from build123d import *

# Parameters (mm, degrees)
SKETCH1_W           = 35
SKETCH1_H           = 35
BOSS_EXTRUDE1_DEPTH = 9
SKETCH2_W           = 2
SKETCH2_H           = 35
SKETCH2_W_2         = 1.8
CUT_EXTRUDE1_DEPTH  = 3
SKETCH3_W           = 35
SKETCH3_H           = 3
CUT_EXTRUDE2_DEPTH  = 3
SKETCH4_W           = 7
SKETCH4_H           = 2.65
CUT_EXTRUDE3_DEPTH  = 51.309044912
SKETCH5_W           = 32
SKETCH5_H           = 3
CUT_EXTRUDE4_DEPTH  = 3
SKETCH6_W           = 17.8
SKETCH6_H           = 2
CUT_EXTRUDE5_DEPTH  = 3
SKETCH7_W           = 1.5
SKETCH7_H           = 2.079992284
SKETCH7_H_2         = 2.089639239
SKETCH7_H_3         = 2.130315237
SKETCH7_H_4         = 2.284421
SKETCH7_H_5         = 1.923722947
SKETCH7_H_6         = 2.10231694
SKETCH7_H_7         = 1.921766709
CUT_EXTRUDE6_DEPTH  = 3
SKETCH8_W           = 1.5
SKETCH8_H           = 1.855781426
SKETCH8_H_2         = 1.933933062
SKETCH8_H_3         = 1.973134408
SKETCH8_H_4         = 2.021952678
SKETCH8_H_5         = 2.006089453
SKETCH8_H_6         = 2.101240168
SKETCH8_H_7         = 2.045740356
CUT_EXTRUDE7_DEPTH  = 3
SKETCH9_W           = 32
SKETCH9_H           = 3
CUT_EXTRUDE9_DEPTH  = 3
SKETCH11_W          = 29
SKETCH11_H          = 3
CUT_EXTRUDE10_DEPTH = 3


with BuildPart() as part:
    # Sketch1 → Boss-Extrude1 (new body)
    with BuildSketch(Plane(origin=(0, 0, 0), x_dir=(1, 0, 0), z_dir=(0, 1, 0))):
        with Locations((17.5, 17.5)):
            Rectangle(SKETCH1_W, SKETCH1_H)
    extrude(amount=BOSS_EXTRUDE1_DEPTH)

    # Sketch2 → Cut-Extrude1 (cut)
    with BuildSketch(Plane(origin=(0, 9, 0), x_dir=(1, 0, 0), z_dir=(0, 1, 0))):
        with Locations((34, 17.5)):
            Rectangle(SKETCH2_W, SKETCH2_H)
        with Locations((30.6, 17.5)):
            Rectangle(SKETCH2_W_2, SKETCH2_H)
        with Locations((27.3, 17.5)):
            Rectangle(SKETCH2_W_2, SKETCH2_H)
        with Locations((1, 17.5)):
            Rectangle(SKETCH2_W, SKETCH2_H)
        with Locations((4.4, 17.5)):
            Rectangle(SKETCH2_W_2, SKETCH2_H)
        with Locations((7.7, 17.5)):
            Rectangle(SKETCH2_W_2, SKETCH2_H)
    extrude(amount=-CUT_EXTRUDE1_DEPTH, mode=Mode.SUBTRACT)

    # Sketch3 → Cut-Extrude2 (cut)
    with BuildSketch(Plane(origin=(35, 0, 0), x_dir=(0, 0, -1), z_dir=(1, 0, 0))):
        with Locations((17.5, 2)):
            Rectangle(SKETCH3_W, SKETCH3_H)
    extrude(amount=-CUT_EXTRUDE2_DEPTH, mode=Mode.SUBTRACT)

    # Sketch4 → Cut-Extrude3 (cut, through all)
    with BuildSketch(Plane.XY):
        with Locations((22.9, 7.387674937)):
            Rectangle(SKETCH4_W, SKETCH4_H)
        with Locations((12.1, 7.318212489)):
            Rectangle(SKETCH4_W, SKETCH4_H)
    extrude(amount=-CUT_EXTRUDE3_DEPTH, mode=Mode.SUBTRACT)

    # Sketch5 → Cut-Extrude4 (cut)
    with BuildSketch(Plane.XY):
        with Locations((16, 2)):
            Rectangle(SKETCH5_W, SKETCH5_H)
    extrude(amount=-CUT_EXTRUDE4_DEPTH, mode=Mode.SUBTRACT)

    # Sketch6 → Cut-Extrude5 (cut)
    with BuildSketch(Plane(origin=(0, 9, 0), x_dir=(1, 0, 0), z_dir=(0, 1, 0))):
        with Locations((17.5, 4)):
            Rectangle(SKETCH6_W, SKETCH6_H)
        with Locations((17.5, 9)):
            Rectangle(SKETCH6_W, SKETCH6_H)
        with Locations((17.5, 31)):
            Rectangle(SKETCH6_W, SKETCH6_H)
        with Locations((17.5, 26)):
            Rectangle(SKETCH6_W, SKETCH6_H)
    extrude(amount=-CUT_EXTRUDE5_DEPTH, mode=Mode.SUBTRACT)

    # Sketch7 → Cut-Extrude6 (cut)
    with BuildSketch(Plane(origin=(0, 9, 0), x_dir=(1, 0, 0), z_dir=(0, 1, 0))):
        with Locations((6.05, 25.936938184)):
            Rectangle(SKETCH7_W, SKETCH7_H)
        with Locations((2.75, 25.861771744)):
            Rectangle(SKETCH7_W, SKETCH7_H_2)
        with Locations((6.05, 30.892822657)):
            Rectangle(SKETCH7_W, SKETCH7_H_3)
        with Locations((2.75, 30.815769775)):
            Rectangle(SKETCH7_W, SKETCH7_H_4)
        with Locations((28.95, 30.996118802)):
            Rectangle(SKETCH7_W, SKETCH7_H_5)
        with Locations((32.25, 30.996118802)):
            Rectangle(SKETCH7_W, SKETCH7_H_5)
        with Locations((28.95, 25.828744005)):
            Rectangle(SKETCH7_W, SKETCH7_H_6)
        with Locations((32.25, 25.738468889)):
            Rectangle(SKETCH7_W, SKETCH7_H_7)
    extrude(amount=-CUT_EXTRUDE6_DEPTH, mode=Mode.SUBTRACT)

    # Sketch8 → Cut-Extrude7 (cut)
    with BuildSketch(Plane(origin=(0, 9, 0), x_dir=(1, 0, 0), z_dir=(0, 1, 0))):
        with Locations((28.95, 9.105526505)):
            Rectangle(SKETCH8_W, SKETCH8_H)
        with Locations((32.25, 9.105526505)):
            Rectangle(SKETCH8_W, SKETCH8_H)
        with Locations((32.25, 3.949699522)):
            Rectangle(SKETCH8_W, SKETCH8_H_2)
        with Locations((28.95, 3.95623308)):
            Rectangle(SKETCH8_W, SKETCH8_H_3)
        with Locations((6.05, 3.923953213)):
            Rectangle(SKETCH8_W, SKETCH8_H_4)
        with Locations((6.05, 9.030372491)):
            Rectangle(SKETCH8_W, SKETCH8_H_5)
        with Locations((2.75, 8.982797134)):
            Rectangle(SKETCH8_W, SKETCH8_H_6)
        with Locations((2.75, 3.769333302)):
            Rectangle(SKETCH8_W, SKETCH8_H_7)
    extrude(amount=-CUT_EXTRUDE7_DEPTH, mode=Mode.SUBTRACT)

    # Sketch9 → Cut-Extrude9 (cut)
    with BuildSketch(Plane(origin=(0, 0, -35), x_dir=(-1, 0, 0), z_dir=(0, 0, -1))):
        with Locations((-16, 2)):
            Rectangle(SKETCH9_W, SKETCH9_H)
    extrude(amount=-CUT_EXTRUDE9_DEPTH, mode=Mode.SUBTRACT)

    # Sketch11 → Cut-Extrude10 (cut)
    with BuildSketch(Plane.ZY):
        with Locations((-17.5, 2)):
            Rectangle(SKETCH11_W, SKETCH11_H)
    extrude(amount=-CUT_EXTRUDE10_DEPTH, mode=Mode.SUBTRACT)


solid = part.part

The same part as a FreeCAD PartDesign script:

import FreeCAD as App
import Part
import Sketcher


def add_polygon(sketch, points):
    """Adds a closed chain of lines whose ends are joined by coincident constraints."""
    first, n = sketch.GeometryCount, len(points)
    for a, b in zip(points, points[1:] + points[:1]):
        sketch.addGeometry(Part.LineSegment(App.Vector(*a, 0), App.Vector(*b, 0)), False)
    for i in range(n):
        sketch.addConstraint(Sketcher.Constraint("Coincident", first + i, 2, first + (i + 1) % n, 1))

doc = App.newDocument("Part")
body = doc.addObject("PartDesign::Body", "Body")

# Sketch on XZ plane
sketch1 = body.newObject("Sketcher::SketchObject", "Sketch")
sketch1.AttachmentSupport = (doc.getObject("XZ_Plane"), [""])
sketch1.MapMode = "FlatFace"
add_polygon(sketch1, [(0, -35), (0, 0), (35, 0), (35, -35)])  # lines 0-3
sketch1.addConstraint(Sketcher.Constraint("Vertical", 0))
sketch1.addConstraint(Sketcher.Constraint("Horizontal", 1))
sketch1.addConstraint(Sketcher.Constraint("Vertical", 2))
sketch1.addConstraint(Sketcher.Constraint("Horizontal", 3))
sketch1.addConstraint(Sketcher.Constraint("Coincident", 0, 2, -1, 1))
sketch1.addConstraint(Sketcher.Constraint("Equal", 3, 0))
sketch1.addConstraint(Sketcher.Constraint("DistanceX", 1, 1, 1, 2, 35.0))
pad1 = body.newObject("PartDesign::Pad", "Pad")
pad1.Profile = sketch1
pad1.Length = 9
pad1.Reversed = True

# Sketch on XZ plane
sketch2 = body.newObject("Sketcher::SketchObject", "Sketch001")
sketch2.AttachmentSupport = (doc.getObject("XZ_Plane"), [""])
sketch2.MapMode = "FlatFace"
sketch2.AttachmentOffset = App.Placement(App.Vector(0, 0, -9), App.Rotation())
add_polygon(sketch2, [(33, -35), (33, 0), (35, 0), (35, -35)])  # lines 0-3
add_polygon(sketch2, [(29.7, -35), (29.7, 0), (31.5, 0), (31.5, -35)])  # lines 4-7
add_polygon(sketch2, [(26.4, -35), (26.4, 0), (28.2, 0), (28.2, -35)])  # lines 8-11
add_polygon(sketch2, [(0, -35), (0, 0), (2, 0), (2, -35)])  # lines 12-15
add_polygon(sketch2, [(3.5, -35), (3.5, 0), (5.3, 0), (5.3, -35)])  # lines 16-19
add_polygon(sketch2, [(6.8, -35), (6.8, 0), (8.6, 0), (8.6, -35)])  # lines 20-23
sketch2.addConstraint(Sketcher.Constraint("Vertical", 0))
sketch2.addConstraint(Sketcher.Constraint("Horizontal", 1))
sketch2.addConstraint(Sketcher.Constraint("Vertical", 2))
sketch2.addConstraint(Sketcher.Constraint("Horizontal", 3))
sketch2.addConstraint(Sketcher.Constraint("Vertical", 4))
sketch2.addConstraint(Sketcher.Constraint("Horizontal", 5))
sketch2.addConstraint(Sketcher.Constraint("Vertical", 6))
sketch2.addConstraint(Sketcher.Constraint("Horizontal", 7))
sketch2.addConstraint(Sketcher.Constraint("Vertical", 8))
sketch2.addConstraint(Sketcher.Constraint("Horizontal", 9))
sketch2.addConstraint(Sketcher.Constraint("Vertical", 10))
sketch2.addConstraint(Sketcher.Constraint("Horizontal", 11))
sketch2.addConstraint(Sketcher.Constraint("Vertical", 12))
sketch2.addConstraint(Sketcher.Constraint("Horizontal", 13))
sketch2.addConstraint(Sketcher.Constraint("Vertical", 14))
sketch2.addConstraint(Sketcher.Constraint("Horizontal", 15))
sketch2.addConstraint(Sketcher.Constraint("Vertical", 16))
sketch2.addConstraint(Sketcher.Constraint("Horizontal", 17))
sketch2.addConstraint(Sketcher.Constraint("Vertical", 18))
sketch2.addConstraint(Sketcher.Constraint("Horizontal", 19))
sketch2.addConstraint(Sketcher.Constraint("Vertical", 20))
sketch2.addConstraint(Sketcher.Constraint("Horizontal", 21))
sketch2.addConstraint(Sketcher.Constraint("Vertical", 22))
sketch2.addConstraint(Sketcher.Constraint("Horizontal", 23))
sketch2.addConstraint(Sketcher.Constraint("Coincident", 12, 2, -1, 1))
sketch2.addConstraint(Sketcher.Constraint("PointOnObject", 0, 2, -1))
sketch2.addConstraint(Sketcher.Constraint("PointOnObject", 4, 2, -1))
sketch2.addConstraint(Sketcher.Constraint("PointOnObject", 8, 2, -1))
sketch2.addConstraint(Sketcher.Constraint("PointOnObject", 16, 2, -1))
sketch2.addConstraint(Sketcher.Constraint("PointOnObject", 20, 2, -1))
sketch2.addConstraint(Sketcher.Constraint("Horizontal", 3, 2, 6, 2))
sketch2.addConstraint(Sketcher.Constraint("Horizontal", 7, 2, 10, 2))
sketch2.addConstraint(Sketcher.Constraint("Horizontal", 11, 2, 14, 2))
sketch2.addConstraint(Sketcher.Constraint("Horizontal", 15, 2, 18, 2))
sketch2.addConstraint(Sketcher.Constraint("Horizontal", 19, 2, 22, 2))
sketch2.addConstraint(Sketcher.Constraint("Equal", 7, 9))
sketch2.addConstraint(Sketcher.Constraint("Equal", 3, 13))
sketch2.addConstraint(Sketcher.Constraint("Equal", 11, 17))
sketch2.addConstraint(Sketcher.Constraint("Equal", 19, 21))
sketch2.addConstraint(Sketcher.Constraint("DistanceX", 1, 1, 1, 2, 2.0))
sketch2.addConstraint(Sketcher.Constraint("DistanceY", 0, 1, 0, 2, 35.0))
sketch2.addConstraint(Sketcher.Constraint("DistanceX", 5, 1, 5, 2, 1.8))
sketch2.addConstraint(Sketcher.Constraint("DistanceX", -1, 1, 0, 2, 33.0))
sketch2.addConstraint(Sketcher.Constraint("DistanceX", -1, 1, 4, 2, 29.7))
sketch2.addConstraint(Sketcher.Constraint("DistanceX", -1, 1, 8, 2, 26.4))
sketch2.addConstraint(Sketcher.Constraint("DistanceX", -1, 1, 16, 2, 3.5))
sketch2.addConstraint(Sketcher.Constraint("DistanceX", -1, 1, 20, 2, 6.8))
pocket1 = body.newObject("PartDesign::Pocket", "Pocket")
pocket1.Profile = sketch2
pocket1.Length = 3
pocket1.Reversed = True

# Sketch on YZ plane
sketch3 = body.newObject("Sketcher::SketchObject", "Sketch002")
sketch3.AttachmentSupport = (doc.getObject("YZ_Plane"), [""])
sketch3.MapMode = "FlatFace"
sketch3.AttachmentOffset = App.Placement(App.Vector(0, 0, 35), App.Rotation())
add_polygon(sketch3, [(3.5, 0), (0.5, 0), (0.5, -35), (3.5, -35)])  # lines 0-3
sketch3.addConstraint(Sketcher.Constraint("Horizontal", 0))
sketch3.addConstraint(Sketcher.Constraint("Vertical", 1))
sketch3.addConstraint(Sketcher.Constraint("Horizontal", 2))
sketch3.addConstraint(Sketcher.Constraint("Vertical", 3))
sketch3.addConstraint(Sketcher.Constraint("PointOnObject", 0, 2, -1))
sketch3.addConstraint(Sketcher.Constraint("DistanceX", 0, 2, 0, 1, 3.0))
sketch3.addConstraint(Sketcher.Constraint("DistanceY", 1, 2, 1, 1, 35.0))
sketch3.addConstraint(Sketcher.Constraint("DistanceX", -1, 1, 0, 2, 0.5))
pocket2 = body.newObject("PartDesign::Pocket", "Pocket001")
pocket2.Profile = sketch3
pocket2.Length = 3

# Sketch on XY plane
sketch4 = body.newObject("Sketcher::SketchObject", "Sketch003")
sketch4.AttachmentSupport = (doc.getObject("XY_Plane"), [""])
sketch4.MapMode = "FlatFace"
add_polygon(sketch4, [(19.4, 8.7), (19.4, 6.1), (26.4, 6.1), (26.4, 8.7)])  # lines 0-3
add_polygon(sketch4, [(8.6, 8.6), (8.6, 6), (15.6, 6), (15.6, 8.6)])  # lines 4-7
sketch4.addConstraint(Sketcher.Constraint("Vertical", 0))
sketch4.addConstraint(Sketcher.Constraint("Horizontal", 1))
sketch4.addConstraint(Sketcher.Constraint("Vertical", 2))
sketch4.addConstraint(Sketcher.Constraint("Horizontal", 3))
sketch4.addConstraint(Sketcher.Constraint("Vertical", 4))
sketch4.addConstraint(Sketcher.Constraint("Horizontal", 5))
sketch4.addConstraint(Sketcher.Constraint("Vertical", 6))
sketch4.addConstraint(Sketcher.Constraint("Horizontal", 7))
sketch4.addConstraint(Sketcher.Constraint("Equal", 3, 5))
sketch4.addConstraint(Sketcher.Constraint("Equal", 2, 4))
sketch4.addConstraint(Sketcher.Constraint("DistanceX", 1, 1, 1, 2, 7.0))
sketch4.addConstraint(Sketcher.Constraint("DistanceY", 0, 2, 0, 1, 2.65))
sketch4.addConstraint(Sketcher.Constraint("DistanceX", -1, 1, 0, 2, 19.4))
sketch4.addConstraint(Sketcher.Constraint("DistanceX", -1, 1, 4, 2, 8.6))
sketch4.addConstraint(Sketcher.Constraint("DistanceY", -1, 1, 0, 2, 6.062675))
sketch4.addConstraint(Sketcher.Constraint("DistanceY", -1, 1, 4, 2, 5.993212))
pocket3 = body.newObject("PartDesign::Pocket", "Pocket002")
pocket3.Profile = sketch4
pocket3.Type = "ThroughAll"

# Sketch on XY plane
sketch5 = body.newObject("Sketcher::SketchObject", "Sketch004")
sketch5.AttachmentSupport = (doc.getObject("XY_Plane"), [""])
sketch5.MapMode = "FlatFace"
add_polygon(sketch5, [(0, 3.5), (0, 0.5), (32, 0.5), (32, 3.5)])  # lines 0-3
sketch5.addConstraint(Sketcher.Constraint("Vertical", 0))
sketch5.addConstraint(Sketcher.Constraint("Horizontal", 1))
sketch5.addConstraint(Sketcher.Constraint("Vertical", 2))
sketch5.addConstraint(Sketcher.Constraint("Horizontal", 3))
sketch5.addConstraint(Sketcher.Constraint("PointOnObject", 0, 2, -2))
sketch5.addConstraint(Sketcher.Constraint("DistanceX", 1, 1, 1, 2, 32.0))
sketch5.addConstraint(Sketcher.Constraint("DistanceY", 0, 2, 0, 1, 3.0))
sketch5.addConstraint(Sketcher.Constraint("DistanceY", -1, 1, 0, 2, 0.5))
pocket4 = body.newObject("PartDesign::Pocket", "Pocket003")
pocket4.Profile = sketch5
pocket4.Length = 3

# Sketch on XZ plane
sketch6 = body.newObject("Sketcher::SketchObject", "Sketch005")
sketch6.AttachmentSupport = (doc.getObject("XZ_Plane"), [""])
sketch6.MapMode = "FlatFace"
sketch6.AttachmentOffset = App.Placement(App.Vector(0, 0, -9), App.Rotation())
add_polygon(sketch6, [(8.6, -5), (8.6, -3), (26.4, -3), (26.4, -5)])  # lines 0-3
add_polygon(sketch6, [(8.6, -10), (8.6, -8), (26.4, -8), (26.4, -10)])  # lines 4-7
add_polygon(sketch6, [(8.6, -32), (8.6, -30), (26.4, -30), (26.4, -32)])  # lines 8-11
add_polygon(sketch6, [(8.6, -27), (8.6, -25), (26.4, -25), (26.4, -27)])  # lines 12-15
sketch6.addConstraint(Sketcher.Constraint("Vertical", 0))
sketch6.addConstraint(Sketcher.Constraint("Horizontal", 1))
sketch6.addConstraint(Sketcher.Constraint("Vertical", 2))
sketch6.addConstraint(Sketcher.Constraint("Horizontal", 3))
sketch6.addConstraint(Sketcher.Constraint("Vertical", 4))
sketch6.addConstraint(Sketcher.Constraint("Horizontal", 5))
sketch6.addConstraint(Sketcher.Constraint("Vertical", 6))
sketch6.addConstraint(Sketcher.Constraint("Horizontal", 7))
sketch6.addConstraint(Sketcher.Constraint("Vertical", 8))
sketch6.addConstraint(Sketcher.Constraint("Horizontal", 9))
sketch6.addConstraint(Sketcher.Constraint("Vertical", 10))
sketch6.addConstraint(Sketcher.Constraint("Horizontal", 11))
sketch6.addConstraint(Sketcher.Constraint("Vertical", 12))
sketch6.addConstraint(Sketcher.Constraint("Horizontal", 13))
sketch6.addConstraint(Sketcher.Constraint("Vertical", 14))
sketch6.addConstraint(Sketcher.Constraint("Horizontal", 15))
sketch6.addConstraint(Sketcher.Constraint("Vertical", 3, 2, 4, 2))
sketch6.addConstraint(Sketcher.Constraint("Vertical", 2, 2, 5, 2))
sketch6.addConstraint(Sketcher.Constraint("Vertical", 7, 2, 8, 2))
sketch6.addConstraint(Sketcher.Constraint("Vertical", 6, 2, 9, 2))
sketch6.addConstraint(Sketcher.Constraint("Vertical", 11, 2, 12, 2))
sketch6.addConstraint(Sketcher.Constraint("Vertical", 10, 2, 13, 2))
sketch6.addConstraint(Sketcher.Constraint("Equal", 2, 4))
sketch6.addConstraint(Sketcher.Constraint("Equal", 6, 8))
sketch6.addConstraint(Sketcher.Constraint("Equal", 10, 12))
sketch6.addConstraint(Sketcher.Constraint("DistanceY", 0, 1, 0, 2, 2.0))
sketch6.addConstraint(Sketcher.Constraint("DistanceX", 1, 1, 1, 2, 17.8))
sketch6.addConstraint(Sketcher.Constraint("DistanceY", 0, 2, -1, 1, 3.0))
sketch6.addConstraint(Sketcher.Constraint("DistanceY", 4, 2, -1, 1, 8.0))
sketch6.addConstraint(Sketcher.Constraint("DistanceY", 8, 2, -1, 1, 30.0))
sketch6.addConstraint(Sketcher.Constraint("DistanceY", 12, 2, -1, 1, 25.0))
sketch6.addConstraint(Sketcher.Constraint("DistanceX", -1, 1, 0, 2, 8.6))
pocket5 = body.newObject("PartDesign::Pocket", "Pocket004")
pocket5.Profile = sketch6
pocket5.Length = 3
pocket5.Reversed = True

# Sketch on XZ plane
sketch7 = body.newObject("Sketcher::SketchObject", "Sketch006")
sketch7.AttachmentSupport = (doc.getObject("XZ_Plane"), [""])
sketch7.MapMode = "FlatFace"
sketch7.AttachmentOffset = App.Placement(App.Vector(0, 0, -9), App.Rotation())
add_polygon(sketch7, [(5.3, -27), (5.3, -24.9), (6.8, -24.9), (6.8, -27)])  # lines 0-3
add_polygon(sketch7, [(2, -26.9), (2, -24.8), (3.5, -24.8), (3.5, -26.9)])  # lines 4-7
add_polygon(sketch7, [(5.3, -32), (5.3, -29.8), (6.8, -29.8), (6.8, -32)])  # lines 8-11
add_polygon(sketch7, [(2, -32), (2, -29.7), (3.5, -29.7), (3.5, -32)])  # lines 12-15
add_polygon(sketch7, [(28.2, -32), (28.2, -30), (29.7, -30), (29.7, -32)])  # lines 16-19
add_polygon(sketch7, [(31.5, -32), (31.5, -30), (33, -30), (33, -32)])  # lines 20-23
add_polygon(sketch7, [(28.2, -26.9), (28.2, -24.8), (29.7, -24.8), (29.7, -26.9)])  # lines 24-27
add_polygon(sketch7, [(31.5, -26.7), (31.5, -24.8), (33, -24.8), (33, -26.7)])  # lines 28-31
sketch7.addConstraint(Sketcher.Constraint("Vertical", 0))
sketch7.addConstraint(Sketcher.Constraint("Horizontal", 1))
sketch7.addConstraint(Sketcher.Constraint("Vertical", 2))
sketch7.addConstraint(Sketcher.Constraint("Horizontal", 3))
sketch7.addConstraint(Sketcher.Constraint("Vertical", 4))
sketch7.addConstraint(Sketcher.Constraint("Horizontal", 5))
sketch7.addConstraint(Sketcher.Constraint("Vertical", 6))
sketch7.addConstraint(Sketcher.Constraint("Horizontal", 7))
sketch7.addConstraint(Sketcher.Constraint("Vertical", 8))
sketch7.addConstraint(Sketcher.Constraint("Horizontal", 9))
sketch7.addConstraint(Sketcher.Constraint("Vertical", 10))
sketch7.addConstraint(Sketcher.Constraint("Horizontal", 11))
sketch7.addConstraint(Sketcher.Constraint("Vertical", 12))
sketch7.addConstraint(Sketcher.Constraint("Horizontal", 13))
sketch7.addConstraint(Sketcher.Constraint("Vertical", 14))
sketch7.addConstraint(Sketcher.Constraint("Horizontal", 15))
sketch7.addConstraint(Sketcher.Constraint("Vertical", 16))
sketch7.addConstraint(Sketcher.Constraint("Horizontal", 17))
sketch7.addConstraint(Sketcher.Constraint("Vertical", 18))
sketch7.addConstraint(Sketcher.Constraint("Horizontal", 19))
sketch7.addConstraint(Sketcher.Constraint("Vertical", 20))
sketch7.addConstraint(Sketcher.Constraint("Horizontal", 21))
sketch7.addConstraint(Sketcher.Constraint("Vertical", 22))
sketch7.addConstraint(Sketcher.Constraint("Horizontal", 23))
sketch7.addConstraint(Sketcher.Constraint("Vertical", 24))
sketch7.addConstraint(Sketcher.Constraint("Horizontal", 25))
sketch7.addConstraint(Sketcher.Constraint("Vertical", 26))
sketch7.addConstraint(Sketcher.Constraint("Horizontal", 27))
sketch7.addConstraint(Sketcher.Constraint("Vertical", 28))
sketch7.addConstraint(Sketcher.Constraint("Horizontal", 29))
sketch7.addConstraint(Sketcher.Constraint("Vertical", 30))
sketch7.addConstraint(Sketcher.Constraint("Horizontal", 31))
sketch7.addConstraint(Sketcher.Constraint("Horizontal", 11, 2, 14, 2))
sketch7.addConstraint(Sketcher.Constraint("Horizontal", 15, 2, 18, 2))
sketch7.addConstraint(Sketcher.Constraint("Horizontal", 17, 2, 20, 2))
sketch7.addConstraint(Sketcher.Constraint("Horizontal", 19, 2, 22, 2))
sketch7.addConstraint(Sketcher.Constraint("Horizontal", 25, 2, 28, 2))
sketch7.addConstraint(Sketcher.Constraint("Vertical", 3, 2, 8, 2))
sketch7.addConstraint(Sketcher.Constraint("Vertical", 2, 2, 9, 2))
sketch7.addConstraint(Sketcher.Constraint("Vertical", 7, 2, 12, 2))
sketch7.addConstraint(Sketcher.Constraint("Vertical", 6, 2, 13, 2))
sketch7.addConstraint(Sketcher.Constraint("Vertical", 19, 2, 24, 2))
sketch7.addConstraint(Sketcher.Constraint("Vertical", 18, 2, 25, 2))
sketch7.addConstraint(Sketcher.Constraint("Vertical", 23, 2, 28, 2))
sketch7.addConstraint(Sketcher.Constraint("Vertical", 22, 2, 29, 2))
sketch7.addConstraint(Sketcher.Constraint("Equal", 3, 5))
sketch7.addConstraint(Sketcher.Constraint("Equal", 15, 17))
sketch7.addConstraint(Sketcher.Constraint("Equal", 19, 21))
sketch7.addConstraint(Sketcher.Constraint("DistanceX", 1, 1, 1, 2, 1.5))
sketch7.addConstraint(Sketcher.Constraint("DistanceX", -1, 1, 4, 2, 2.0))
sketch7.addConstraint(Sketcher.Constraint("DistanceX", -1, 1, 21, 2, 33.0))
sketch7.addConstraint(Sketcher.Constraint("DistanceX", -1, 1, 0, 2, 5.3))
sketch7.addConstraint(Sketcher.Constraint("DistanceX", -1, 1, 16, 2, 28.2))
sketch7.addConstraint(Sketcher.Constraint("DistanceY", 4, 1, 4, 2, 2.089639))
sketch7.addConstraint(Sketcher.Constraint("DistanceY", 12, 1, 12, 2, 2.284421))
sketch7.addConstraint(Sketcher.Constraint("DistanceY", 0, 1, 0, 2, 2.079992))
sketch7.addConstraint(Sketcher.Constraint("DistanceY", 8, 1, 8, 2, 2.130315))
sketch7.addConstraint(Sketcher.Constraint("DistanceY", 16, 1, 16, 2, 1.923723))
sketch7.addConstraint(Sketcher.Constraint("DistanceY", 24, 1, 24, 2, 2.102317))
sketch7.addConstraint(Sketcher.Constraint("DistanceY", 28, 1, 28, 2, 1.921767))
sketch7.addConstraint(Sketcher.Constraint("DistanceY", 6, 2, -1, 1, 26.906591))
sketch7.addConstraint(Sketcher.Constraint("DistanceY", 10, 2, -1, 1, 31.95798))
sketch7.addConstraint(Sketcher.Constraint("DistanceY", 0, 2, 4, 2, 0.07999))
sketch7.addConstraint(Sketcher.Constraint("DistanceY", 16, 2, 24, 2, 5.256672))
pocket6 = body.newObject("PartDesign::Pocket", "Pocket005")
pocket6.Profile = sketch7
pocket6.Length = 3
pocket6.Reversed = True

# Sketch on XZ plane
sketch8 = body.newObject("Sketcher::SketchObject", "Sketch007")
sketch8.AttachmentSupport = (doc.getObject("XZ_Plane"), [""])
sketch8.MapMode = "FlatFace"
sketch8.AttachmentOffset = App.Placement(App.Vector(0, 0, -9), App.Rotation())
add_polygon(sketch8, [(28.2, -10), (28.2, -8.2), (29.7, -8.2), (29.7, -10)])  # lines 0-3
add_polygon(sketch8, [(31.5, -10), (31.5, -8.2), (33, -8.2), (33, -10)])  # lines 4-7
add_polygon(sketch8, [(31.5, -4.9), (31.5, -3), (33, -3), (33, -4.9)])  # lines 8-11
add_polygon(sketch8, [(28.2, -4.9), (28.2, -3), (29.7, -3), (29.7, -4.9)])  # lines 12-15
add_polygon(sketch8, [(5.3, -4.9), (5.3, -2.9), (6.8, -2.9), (6.8, -4.9)])  # lines 16-19
add_polygon(sketch8, [(5.3, -10), (5.3, -8), (6.8, -8), (6.8, -10)])  # lines 20-23
add_polygon(sketch8, [(2, -10), (2, -7.9), (3.5, -7.9), (3.5, -10)])  # lines 24-27
add_polygon(sketch8, [(2, -4.8), (2, -2.7), (3.5, -2.7), (3.5, -4.8)])  # lines 28-31
sketch8.addConstraint(Sketcher.Constraint("Vertical", 0))
sketch8.addConstraint(Sketcher.Constraint("Horizontal", 1))
sketch8.addConstraint(Sketcher.Constraint("Vertical", 2))
sketch8.addConstraint(Sketcher.Constraint("Horizontal", 3))
sketch8.addConstraint(Sketcher.Constraint("Vertical", 4))
sketch8.addConstraint(Sketcher.Constraint("Horizontal", 5))
sketch8.addConstraint(Sketcher.Constraint("Vertical", 6))
sketch8.addConstraint(Sketcher.Constraint("Horizontal", 7))
sketch8.addConstraint(Sketcher.Constraint("Vertical", 8))
sketch8.addConstraint(Sketcher.Constraint("Horizontal", 9))
sketch8.addConstraint(Sketcher.Constraint("Vertical", 10))
sketch8.addConstraint(Sketcher.Constraint("Horizontal", 11))
sketch8.addConstraint(Sketcher.Constraint("Vertical", 12))
sketch8.addConstraint(Sketcher.Constraint("Horizontal", 13))
sketch8.addConstraint(Sketcher.Constraint("Vertical", 14))
sketch8.addConstraint(Sketcher.Constraint("Horizontal", 15))
sketch8.addConstraint(Sketcher.Constraint("Vertical", 16))
sketch8.addConstraint(Sketcher.Constraint("Horizontal", 17))
sketch8.addConstraint(Sketcher.Constraint("Vertical", 18))
sketch8.addConstraint(Sketcher.Constraint("Horizontal", 19))
sketch8.addConstraint(Sketcher.Constraint("Vertical", 20))
sketch8.addConstraint(Sketcher.Constraint("Horizontal", 21))
sketch8.addConstraint(Sketcher.Constraint("Vertical", 22))
sketch8.addConstraint(Sketcher.Constraint("Horizontal", 23))
sketch8.addConstraint(Sketcher.Constraint("Vertical", 24))
sketch8.addConstraint(Sketcher.Constraint("Horizontal", 25))
sketch8.addConstraint(Sketcher.Constraint("Vertical", 26))
sketch8.addConstraint(Sketcher.Constraint("Horizontal", 27))
sketch8.addConstraint(Sketcher.Constraint("Vertical", 28))
sketch8.addConstraint(Sketcher.Constraint("Horizontal", 29))
sketch8.addConstraint(Sketcher.Constraint("Vertical", 30))
sketch8.addConstraint(Sketcher.Constraint("Horizontal", 31))
sketch8.addConstraint(Sketcher.Constraint("Horizontal", 1, 2, 4, 2))
sketch8.addConstraint(Sketcher.Constraint("Horizontal", 3, 2, 6, 2))
sketch8.addConstraint(Sketcher.Constraint("Horizontal", 7, 2, 22, 2))
sketch8.addConstraint(Sketcher.Constraint("Horizontal", 23, 2, 26, 2))
sketch8.addConstraint(Sketcher.Constraint("Vertical", 7, 2, 8, 2))
sketch8.addConstraint(Sketcher.Constraint("Vertical", 6, 2, 9, 2))
sketch8.addConstraint(Sketcher.Constraint("Vertical", 3, 2, 12, 2))
sketch8.addConstraint(Sketcher.Constraint("Vertical", 2, 2, 13, 2))
sketch8.addConstraint(Sketcher.Constraint("Vertical", 19, 2, 20, 2))
sketch8.addConstraint(Sketcher.Constraint("Vertical", 18, 2, 21, 2))
sketch8.addConstraint(Sketcher.Constraint("Vertical", 27, 2, 28, 2))
sketch8.addConstraint(Sketcher.Constraint("Vertical", 26, 2, 29, 2))
sketch8.addConstraint(Sketcher.Constraint("Equal", 3, 5))
sketch8.addConstraint(Sketcher.Constraint("Equal", 15, 17))
sketch8.addConstraint(Sketcher.Constraint("Equal", 23, 25))
sketch8.addConstraint(Sketcher.Constraint("DistanceX", 1, 1, 1, 2, 1.5))
sketch8.addConstraint(Sketcher.Constraint("DistanceX", -1, 1, 5, 2, 33.0))
sketch8.addConstraint(Sketcher.Constraint("DistanceX", -1, 1, 24, 2, 2.0))
sketch8.addConstraint(Sketcher.Constraint("DistanceX", -1, 1, 0, 2, 28.2))
sketch8.addConstraint(Sketcher.Constraint("DistanceX", -1, 1, 16, 2, 5.3))
sketch8.addConstraint(Sketcher.Constraint("DistanceY", 11, 2, 12, 2, 1.947))
sketch8.addConstraint(Sketcher.Constraint("DistanceY", 0, 1, 0, 2, 1.855781))
sketch8.addConstraint(Sketcher.Constraint("DistanceY", 20, 1, 20, 2, 2.006089))
sketch8.addConstraint(Sketcher.Constraint("DistanceY", 24, 1, 24, 2, 2.10124))
sketch8.addConstraint(Sketcher.Constraint("DistanceY", 28, 1, 28, 2, 2.04574))
sketch8.addConstraint(Sketcher.Constraint("DistanceY", 14, 2, -1, 1, 4.9428))
sketch8.addConstraint(Sketcher.Constraint("DistanceY", 20, 2, 19, 2, 3.092398))
sketch8.addConstraint(Sketcher.Constraint("DistanceY", 8, 1, 8, 2, 1.933933))
sketch8.addConstraint(Sketcher.Constraint("DistanceY", 12, 1, 12, 2, 1.973134))
sketch8.addConstraint(Sketcher.Constraint("DistanceY", 16, 1, 16, 2, 2.021953))
sketch8.addConstraint(Sketcher.Constraint("DistanceY", 18, 2, -1, 1, 4.93493))
sketch8.addConstraint(Sketcher.Constraint("DistanceY", 28, 2, -1, 1, 2.746463))
pocket7 = body.newObject("PartDesign::Pocket", "Pocket006")
pocket7.Profile = sketch8
pocket7.Length = 3
pocket7.Reversed = True

# Sketch on XY plane
sketch9 = body.newObject("Sketcher::SketchObject", "Sketch008")
sketch9.AttachmentSupport = (doc.getObject("XY_Plane"), [""])
sketch9.MapMode = "FlatFace"
sketch9.AttachmentOffset = App.Placement(App.Vector(0, 0, -35), App.Rotation())
add_polygon(sketch9, [(32, 3.5), (32, 0.5), (0, 0.5), (0, 3.5)])  # lines 0-3
sketch9.addConstraint(Sketcher.Constraint("Vertical", 0))
sketch9.addConstraint(Sketcher.Constraint("Horizontal", 1))
sketch9.addConstraint(Sketcher.Constraint("Vertical", 2))
sketch9.addConstraint(Sketcher.Constraint("Horizontal", 3))
sketch9.addConstraint(Sketcher.Constraint("PointOnObject", 1, 2, -2))
sketch9.addConstraint(Sketcher.Constraint("DistanceX", 1, 2, 1, 1, 32.0))
sketch9.addConstraint(Sketcher.Constraint("DistanceY", 0, 2, 0, 1, 3.0))
sketch9.addConstraint(Sketcher.Constraint("DistanceY", -1, 1, 0, 2, 0.5))
pocket8 = body.newObject("PartDesign::Pocket", "Pocket007")
pocket8.Profile = sketch9
pocket8.Length = 3
pocket8.Reversed = True

# Sketch on YZ plane
sketch10 = body.newObject("Sketcher::SketchObject", "Sketch009")
sketch10.AttachmentSupport = (doc.getObject("YZ_Plane"), [""])
sketch10.MapMode = "FlatFace"
add_polygon(sketch10, [(3.5, -32), (0.5, -32), (0.5, -3), (3.5, -3)])  # lines 0-3
sketch10.addConstraint(Sketcher.Constraint("Horizontal", 0))
sketch10.addConstraint(Sketcher.Constraint("Vertical", 1))
sketch10.addConstraint(Sketcher.Constraint("Horizontal", 2))
sketch10.addConstraint(Sketcher.Constraint("Vertical", 3))
sketch10.addConstraint(Sketcher.Constraint("DistanceX", 0, 2, 0, 1, 3.0))
sketch10.addConstraint(Sketcher.Constraint("DistanceY", 1, 1, 1, 2, 29.0))
sketch10.addConstraint(Sketcher.Constraint("DistanceY", 0, 2, -1, 1, 32.0))
sketch10.addConstraint(Sketcher.Constraint("DistanceX", -1, 1, 0, 2, 0.5))
pocket9 = body.newObject("PartDesign::Pocket", "Pocket008")
pocket9.Profile = sketch10
pocket9.Length = 3
pocket9.Reversed = True

doc.recompute()
